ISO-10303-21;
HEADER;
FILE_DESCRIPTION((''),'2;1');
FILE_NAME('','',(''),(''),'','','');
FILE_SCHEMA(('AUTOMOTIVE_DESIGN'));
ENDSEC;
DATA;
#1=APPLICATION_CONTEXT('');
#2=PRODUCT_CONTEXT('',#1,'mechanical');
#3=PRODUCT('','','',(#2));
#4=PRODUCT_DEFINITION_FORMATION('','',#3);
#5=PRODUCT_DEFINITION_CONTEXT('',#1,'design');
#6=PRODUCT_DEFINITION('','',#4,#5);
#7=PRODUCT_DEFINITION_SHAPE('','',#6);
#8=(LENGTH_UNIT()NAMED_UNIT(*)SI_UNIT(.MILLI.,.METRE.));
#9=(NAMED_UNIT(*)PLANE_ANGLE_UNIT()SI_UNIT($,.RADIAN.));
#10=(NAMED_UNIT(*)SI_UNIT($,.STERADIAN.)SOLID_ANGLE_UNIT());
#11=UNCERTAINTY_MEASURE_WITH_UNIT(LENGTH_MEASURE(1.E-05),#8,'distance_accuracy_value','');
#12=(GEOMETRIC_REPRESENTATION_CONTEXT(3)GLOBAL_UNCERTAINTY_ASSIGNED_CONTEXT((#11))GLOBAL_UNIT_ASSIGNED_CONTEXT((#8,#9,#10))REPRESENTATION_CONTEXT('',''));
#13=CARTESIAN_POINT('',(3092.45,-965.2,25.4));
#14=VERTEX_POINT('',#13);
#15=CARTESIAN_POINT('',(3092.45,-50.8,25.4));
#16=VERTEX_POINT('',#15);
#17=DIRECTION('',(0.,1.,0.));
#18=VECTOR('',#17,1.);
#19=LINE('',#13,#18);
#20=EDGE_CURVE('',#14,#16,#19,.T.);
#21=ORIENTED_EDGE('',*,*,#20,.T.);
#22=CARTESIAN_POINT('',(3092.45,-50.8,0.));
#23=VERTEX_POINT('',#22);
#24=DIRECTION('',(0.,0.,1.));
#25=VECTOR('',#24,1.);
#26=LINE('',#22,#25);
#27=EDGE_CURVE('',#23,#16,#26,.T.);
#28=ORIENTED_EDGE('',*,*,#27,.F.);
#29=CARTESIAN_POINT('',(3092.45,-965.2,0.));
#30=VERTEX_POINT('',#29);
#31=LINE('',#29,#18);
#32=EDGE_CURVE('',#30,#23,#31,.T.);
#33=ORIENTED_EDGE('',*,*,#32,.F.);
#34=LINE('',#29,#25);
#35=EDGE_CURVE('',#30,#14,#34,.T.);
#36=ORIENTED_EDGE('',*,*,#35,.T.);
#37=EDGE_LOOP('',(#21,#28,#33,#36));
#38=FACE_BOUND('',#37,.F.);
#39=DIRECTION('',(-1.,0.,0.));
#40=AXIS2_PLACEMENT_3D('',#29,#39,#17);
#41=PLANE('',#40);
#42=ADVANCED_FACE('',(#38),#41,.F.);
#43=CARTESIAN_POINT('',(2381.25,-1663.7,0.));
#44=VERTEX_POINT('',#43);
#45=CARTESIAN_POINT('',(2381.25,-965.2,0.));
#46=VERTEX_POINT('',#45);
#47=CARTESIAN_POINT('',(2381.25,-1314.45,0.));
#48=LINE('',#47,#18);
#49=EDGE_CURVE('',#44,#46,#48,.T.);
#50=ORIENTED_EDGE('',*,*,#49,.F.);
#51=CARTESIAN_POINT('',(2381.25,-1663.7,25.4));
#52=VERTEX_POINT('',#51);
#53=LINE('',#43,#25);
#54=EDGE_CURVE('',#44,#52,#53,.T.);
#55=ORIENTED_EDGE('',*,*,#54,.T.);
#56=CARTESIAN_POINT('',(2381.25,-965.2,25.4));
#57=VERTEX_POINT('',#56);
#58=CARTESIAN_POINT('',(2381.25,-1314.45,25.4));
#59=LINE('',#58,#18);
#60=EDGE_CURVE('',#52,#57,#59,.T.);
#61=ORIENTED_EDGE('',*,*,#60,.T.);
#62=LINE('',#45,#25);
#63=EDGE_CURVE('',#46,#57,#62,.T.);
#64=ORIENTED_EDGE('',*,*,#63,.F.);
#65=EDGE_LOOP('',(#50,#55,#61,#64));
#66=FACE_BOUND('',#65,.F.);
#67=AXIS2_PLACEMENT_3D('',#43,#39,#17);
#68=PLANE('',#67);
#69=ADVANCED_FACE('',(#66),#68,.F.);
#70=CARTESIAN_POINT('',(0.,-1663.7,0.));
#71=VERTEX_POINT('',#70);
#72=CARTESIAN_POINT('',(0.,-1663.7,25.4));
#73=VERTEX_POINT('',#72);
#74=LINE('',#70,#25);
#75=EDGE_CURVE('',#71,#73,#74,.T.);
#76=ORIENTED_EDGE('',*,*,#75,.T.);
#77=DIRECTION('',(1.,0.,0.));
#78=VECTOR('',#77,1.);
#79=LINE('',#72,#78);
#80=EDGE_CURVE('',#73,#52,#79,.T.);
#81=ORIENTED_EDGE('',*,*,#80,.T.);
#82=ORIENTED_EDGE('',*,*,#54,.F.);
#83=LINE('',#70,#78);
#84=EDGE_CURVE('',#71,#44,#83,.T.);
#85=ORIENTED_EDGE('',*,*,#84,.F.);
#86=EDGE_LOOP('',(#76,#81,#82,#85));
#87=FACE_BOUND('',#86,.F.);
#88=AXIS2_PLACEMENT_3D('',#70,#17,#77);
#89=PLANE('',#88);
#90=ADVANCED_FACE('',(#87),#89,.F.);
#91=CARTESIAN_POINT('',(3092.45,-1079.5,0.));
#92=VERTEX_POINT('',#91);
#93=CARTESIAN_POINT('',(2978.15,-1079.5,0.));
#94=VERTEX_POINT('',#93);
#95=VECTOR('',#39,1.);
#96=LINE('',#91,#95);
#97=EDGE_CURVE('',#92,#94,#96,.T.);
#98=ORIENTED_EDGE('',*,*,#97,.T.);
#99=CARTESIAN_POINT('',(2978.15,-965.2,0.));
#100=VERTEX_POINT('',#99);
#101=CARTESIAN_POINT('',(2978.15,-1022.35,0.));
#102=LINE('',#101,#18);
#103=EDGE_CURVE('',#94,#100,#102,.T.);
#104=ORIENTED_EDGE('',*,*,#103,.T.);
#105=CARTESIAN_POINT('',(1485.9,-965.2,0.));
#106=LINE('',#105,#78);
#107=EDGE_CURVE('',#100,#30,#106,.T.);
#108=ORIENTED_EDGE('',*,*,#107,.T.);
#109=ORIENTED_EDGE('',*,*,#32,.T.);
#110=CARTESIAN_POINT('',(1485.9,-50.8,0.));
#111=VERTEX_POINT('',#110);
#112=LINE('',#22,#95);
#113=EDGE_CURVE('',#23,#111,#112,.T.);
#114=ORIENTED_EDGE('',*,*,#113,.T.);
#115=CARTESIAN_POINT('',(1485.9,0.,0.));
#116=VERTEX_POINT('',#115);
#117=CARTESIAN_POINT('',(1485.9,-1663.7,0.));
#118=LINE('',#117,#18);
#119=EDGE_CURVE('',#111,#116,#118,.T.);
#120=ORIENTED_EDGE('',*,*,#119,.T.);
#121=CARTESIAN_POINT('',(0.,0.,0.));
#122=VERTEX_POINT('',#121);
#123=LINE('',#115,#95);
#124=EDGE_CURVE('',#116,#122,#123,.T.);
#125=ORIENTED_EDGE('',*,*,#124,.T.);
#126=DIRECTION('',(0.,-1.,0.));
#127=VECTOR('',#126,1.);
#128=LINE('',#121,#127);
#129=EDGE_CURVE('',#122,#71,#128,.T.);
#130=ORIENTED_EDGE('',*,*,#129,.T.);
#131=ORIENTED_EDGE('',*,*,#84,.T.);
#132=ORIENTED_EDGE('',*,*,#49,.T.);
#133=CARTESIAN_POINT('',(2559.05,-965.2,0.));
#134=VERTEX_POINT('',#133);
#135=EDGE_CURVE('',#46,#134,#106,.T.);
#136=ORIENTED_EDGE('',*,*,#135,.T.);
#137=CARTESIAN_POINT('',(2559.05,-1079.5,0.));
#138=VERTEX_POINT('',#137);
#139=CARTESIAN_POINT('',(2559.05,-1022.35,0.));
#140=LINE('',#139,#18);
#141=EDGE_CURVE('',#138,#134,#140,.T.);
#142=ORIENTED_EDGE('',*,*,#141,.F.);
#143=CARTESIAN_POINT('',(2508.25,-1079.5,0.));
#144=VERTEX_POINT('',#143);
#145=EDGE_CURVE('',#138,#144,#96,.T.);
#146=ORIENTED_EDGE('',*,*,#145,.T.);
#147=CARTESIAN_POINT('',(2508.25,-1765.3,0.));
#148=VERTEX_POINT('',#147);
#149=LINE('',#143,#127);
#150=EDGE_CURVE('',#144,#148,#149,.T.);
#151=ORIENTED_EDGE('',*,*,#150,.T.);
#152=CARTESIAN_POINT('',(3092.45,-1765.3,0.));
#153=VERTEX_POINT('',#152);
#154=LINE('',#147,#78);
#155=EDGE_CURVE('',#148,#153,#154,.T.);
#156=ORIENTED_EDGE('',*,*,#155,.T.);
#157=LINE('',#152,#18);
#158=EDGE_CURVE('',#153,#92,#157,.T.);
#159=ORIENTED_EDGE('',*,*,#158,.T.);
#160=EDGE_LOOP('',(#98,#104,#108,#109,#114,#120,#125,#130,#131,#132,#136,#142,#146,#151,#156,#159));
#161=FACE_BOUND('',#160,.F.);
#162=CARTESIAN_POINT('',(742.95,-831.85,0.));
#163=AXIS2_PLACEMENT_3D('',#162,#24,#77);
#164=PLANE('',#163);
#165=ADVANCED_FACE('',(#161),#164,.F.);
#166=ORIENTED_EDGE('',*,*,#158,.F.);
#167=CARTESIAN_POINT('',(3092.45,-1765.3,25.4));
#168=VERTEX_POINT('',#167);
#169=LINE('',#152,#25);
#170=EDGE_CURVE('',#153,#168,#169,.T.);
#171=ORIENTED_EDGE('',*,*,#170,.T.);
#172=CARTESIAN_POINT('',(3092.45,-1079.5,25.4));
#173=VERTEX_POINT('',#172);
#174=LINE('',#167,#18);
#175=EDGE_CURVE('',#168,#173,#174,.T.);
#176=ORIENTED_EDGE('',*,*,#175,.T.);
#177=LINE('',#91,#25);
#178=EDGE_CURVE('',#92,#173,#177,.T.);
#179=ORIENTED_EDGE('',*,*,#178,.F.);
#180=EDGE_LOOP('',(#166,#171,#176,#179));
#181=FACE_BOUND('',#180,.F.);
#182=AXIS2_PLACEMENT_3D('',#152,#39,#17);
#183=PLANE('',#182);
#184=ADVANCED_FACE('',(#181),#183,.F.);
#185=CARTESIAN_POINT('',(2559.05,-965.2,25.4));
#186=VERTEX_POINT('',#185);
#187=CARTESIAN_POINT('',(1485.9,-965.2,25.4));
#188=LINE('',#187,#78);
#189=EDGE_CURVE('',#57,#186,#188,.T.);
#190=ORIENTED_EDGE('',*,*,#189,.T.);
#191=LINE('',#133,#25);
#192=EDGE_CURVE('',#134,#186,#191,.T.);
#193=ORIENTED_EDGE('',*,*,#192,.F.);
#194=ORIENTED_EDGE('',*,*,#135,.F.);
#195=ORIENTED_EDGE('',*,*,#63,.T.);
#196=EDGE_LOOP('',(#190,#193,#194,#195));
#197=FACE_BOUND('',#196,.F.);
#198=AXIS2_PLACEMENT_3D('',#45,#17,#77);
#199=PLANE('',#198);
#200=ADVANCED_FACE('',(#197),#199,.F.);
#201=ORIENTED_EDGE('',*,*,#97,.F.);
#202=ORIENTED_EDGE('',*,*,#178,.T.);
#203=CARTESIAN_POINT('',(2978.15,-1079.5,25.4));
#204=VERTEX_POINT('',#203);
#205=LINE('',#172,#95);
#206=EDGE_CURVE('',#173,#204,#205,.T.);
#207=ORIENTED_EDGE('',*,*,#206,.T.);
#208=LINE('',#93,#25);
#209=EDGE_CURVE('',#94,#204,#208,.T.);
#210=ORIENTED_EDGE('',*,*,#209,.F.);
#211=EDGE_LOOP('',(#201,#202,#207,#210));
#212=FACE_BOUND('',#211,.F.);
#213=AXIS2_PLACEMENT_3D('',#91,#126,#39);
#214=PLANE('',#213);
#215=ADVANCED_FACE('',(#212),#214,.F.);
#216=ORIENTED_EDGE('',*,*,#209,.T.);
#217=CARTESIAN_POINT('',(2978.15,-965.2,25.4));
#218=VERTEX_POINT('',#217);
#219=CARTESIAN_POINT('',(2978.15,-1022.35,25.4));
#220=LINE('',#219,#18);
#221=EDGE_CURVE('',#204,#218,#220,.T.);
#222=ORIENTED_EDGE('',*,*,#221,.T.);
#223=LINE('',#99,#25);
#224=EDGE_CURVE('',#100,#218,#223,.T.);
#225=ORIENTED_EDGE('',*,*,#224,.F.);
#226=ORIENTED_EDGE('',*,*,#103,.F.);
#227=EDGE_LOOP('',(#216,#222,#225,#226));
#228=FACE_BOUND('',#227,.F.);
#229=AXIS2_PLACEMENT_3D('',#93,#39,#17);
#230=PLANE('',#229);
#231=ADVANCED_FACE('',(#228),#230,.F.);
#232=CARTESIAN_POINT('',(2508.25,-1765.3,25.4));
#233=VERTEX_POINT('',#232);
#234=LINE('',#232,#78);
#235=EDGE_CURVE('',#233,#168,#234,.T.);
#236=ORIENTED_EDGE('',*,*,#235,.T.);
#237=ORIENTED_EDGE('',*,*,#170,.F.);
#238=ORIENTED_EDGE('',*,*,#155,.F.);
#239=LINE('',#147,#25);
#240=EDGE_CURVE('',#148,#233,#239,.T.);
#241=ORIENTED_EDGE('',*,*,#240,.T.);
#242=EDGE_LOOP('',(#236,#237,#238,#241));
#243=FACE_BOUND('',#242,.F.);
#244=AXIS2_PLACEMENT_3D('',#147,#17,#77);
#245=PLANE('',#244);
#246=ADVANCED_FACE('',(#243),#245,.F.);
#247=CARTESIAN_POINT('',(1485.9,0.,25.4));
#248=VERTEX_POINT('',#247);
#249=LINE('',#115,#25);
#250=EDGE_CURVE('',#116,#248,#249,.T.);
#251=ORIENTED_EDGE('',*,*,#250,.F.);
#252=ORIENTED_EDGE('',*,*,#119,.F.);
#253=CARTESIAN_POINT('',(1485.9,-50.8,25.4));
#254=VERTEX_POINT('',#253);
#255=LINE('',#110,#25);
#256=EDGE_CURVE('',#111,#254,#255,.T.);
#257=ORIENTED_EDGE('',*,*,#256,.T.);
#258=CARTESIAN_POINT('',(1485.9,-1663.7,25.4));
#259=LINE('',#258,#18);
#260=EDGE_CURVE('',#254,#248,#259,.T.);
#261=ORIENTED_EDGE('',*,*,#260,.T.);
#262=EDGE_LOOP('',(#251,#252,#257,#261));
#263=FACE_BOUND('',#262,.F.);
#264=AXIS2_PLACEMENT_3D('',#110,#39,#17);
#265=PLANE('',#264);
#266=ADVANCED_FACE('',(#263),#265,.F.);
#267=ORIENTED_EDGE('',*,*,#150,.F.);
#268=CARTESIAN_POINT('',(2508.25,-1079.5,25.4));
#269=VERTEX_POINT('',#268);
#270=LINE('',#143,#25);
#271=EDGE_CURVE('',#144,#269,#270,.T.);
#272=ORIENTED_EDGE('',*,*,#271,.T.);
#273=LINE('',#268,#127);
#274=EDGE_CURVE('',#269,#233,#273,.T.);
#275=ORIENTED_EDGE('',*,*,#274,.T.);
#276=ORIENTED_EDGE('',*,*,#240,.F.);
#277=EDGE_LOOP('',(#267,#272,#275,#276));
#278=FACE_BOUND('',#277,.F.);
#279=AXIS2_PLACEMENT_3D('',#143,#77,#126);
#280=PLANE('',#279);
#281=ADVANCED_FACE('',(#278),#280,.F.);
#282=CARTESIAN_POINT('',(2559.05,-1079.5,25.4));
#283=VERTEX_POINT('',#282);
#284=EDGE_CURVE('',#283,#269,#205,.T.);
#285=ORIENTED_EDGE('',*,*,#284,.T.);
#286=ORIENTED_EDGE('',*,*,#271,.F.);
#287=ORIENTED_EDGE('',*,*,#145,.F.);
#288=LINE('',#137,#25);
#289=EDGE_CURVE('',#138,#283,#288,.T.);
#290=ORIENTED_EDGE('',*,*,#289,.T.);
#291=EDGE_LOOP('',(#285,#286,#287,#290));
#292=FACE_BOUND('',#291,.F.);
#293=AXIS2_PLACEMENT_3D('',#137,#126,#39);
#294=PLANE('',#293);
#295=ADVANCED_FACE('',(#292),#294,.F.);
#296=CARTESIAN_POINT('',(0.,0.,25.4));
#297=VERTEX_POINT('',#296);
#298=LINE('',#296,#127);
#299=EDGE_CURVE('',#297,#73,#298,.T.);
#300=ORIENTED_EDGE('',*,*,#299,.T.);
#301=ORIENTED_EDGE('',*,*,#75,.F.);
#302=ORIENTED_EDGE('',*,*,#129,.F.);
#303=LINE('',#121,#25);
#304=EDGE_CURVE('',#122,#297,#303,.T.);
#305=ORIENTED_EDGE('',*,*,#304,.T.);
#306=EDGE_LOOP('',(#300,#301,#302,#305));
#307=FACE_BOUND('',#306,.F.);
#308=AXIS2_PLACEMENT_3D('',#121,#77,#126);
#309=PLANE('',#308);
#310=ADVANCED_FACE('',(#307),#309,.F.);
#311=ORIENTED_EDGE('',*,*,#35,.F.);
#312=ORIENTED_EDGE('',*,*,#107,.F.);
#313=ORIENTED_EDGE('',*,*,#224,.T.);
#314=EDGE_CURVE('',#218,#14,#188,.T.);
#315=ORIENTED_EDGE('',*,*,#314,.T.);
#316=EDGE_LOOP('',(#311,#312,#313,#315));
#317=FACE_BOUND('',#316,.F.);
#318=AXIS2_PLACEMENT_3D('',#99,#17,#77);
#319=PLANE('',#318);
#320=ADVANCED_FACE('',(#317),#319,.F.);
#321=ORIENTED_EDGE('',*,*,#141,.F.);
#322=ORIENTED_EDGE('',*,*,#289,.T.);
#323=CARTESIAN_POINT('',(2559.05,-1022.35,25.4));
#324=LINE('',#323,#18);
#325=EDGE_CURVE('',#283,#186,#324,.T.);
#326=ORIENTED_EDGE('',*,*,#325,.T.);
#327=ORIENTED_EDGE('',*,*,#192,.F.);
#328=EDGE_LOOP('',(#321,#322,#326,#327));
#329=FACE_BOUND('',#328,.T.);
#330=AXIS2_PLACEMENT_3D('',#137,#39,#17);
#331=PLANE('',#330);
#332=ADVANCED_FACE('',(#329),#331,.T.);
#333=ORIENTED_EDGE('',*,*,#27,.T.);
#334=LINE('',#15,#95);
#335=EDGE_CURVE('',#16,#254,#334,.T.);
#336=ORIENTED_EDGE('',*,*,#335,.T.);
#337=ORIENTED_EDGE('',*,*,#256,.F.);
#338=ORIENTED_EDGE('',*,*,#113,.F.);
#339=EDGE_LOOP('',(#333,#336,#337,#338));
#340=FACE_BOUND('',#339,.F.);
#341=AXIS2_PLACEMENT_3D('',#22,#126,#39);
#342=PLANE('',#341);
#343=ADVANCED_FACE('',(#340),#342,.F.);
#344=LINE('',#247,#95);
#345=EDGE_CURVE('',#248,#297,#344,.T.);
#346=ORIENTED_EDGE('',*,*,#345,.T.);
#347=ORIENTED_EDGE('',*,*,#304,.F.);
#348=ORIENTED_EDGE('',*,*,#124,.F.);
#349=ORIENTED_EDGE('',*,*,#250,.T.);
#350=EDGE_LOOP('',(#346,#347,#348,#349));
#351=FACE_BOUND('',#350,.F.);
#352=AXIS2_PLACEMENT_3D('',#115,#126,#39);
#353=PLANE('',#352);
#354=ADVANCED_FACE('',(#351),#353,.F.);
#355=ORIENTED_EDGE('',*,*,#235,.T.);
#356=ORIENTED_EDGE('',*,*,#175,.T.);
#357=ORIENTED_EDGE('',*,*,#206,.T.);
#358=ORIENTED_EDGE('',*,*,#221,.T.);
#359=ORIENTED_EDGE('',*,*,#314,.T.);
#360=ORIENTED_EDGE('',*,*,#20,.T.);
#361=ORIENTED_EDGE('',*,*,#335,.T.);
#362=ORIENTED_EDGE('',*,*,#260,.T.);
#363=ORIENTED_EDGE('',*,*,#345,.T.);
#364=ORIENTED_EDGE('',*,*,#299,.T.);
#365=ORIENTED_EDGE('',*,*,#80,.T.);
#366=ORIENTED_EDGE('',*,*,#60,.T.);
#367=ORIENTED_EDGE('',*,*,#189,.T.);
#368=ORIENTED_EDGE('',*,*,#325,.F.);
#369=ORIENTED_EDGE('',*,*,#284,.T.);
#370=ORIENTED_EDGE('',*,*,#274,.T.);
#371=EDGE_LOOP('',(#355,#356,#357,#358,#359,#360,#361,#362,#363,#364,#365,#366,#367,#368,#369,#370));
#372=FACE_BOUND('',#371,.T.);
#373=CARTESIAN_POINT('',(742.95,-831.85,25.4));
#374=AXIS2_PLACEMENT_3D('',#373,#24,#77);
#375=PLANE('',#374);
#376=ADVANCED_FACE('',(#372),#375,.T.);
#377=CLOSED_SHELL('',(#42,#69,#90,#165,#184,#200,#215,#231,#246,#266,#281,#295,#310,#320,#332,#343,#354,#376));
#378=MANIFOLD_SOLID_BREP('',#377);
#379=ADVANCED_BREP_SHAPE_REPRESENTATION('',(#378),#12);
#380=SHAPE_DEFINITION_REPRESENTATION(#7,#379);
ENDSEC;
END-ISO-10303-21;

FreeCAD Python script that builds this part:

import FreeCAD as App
import Part
import Sketcher

V = App.Vector
Q = App.Units.Quantity


def add_polygon(sketch, points):
    """Adds a closed chain of lines whose ends are joined by coincident constraints."""
    first, n = sketch.GeometryCount, len(points)
    for a, b in zip(points, points[1:] + points[:1]):
        sketch.addGeometry(Part.LineSegment(App.Vector(*a, 0), App.Vector(*b, 0)), False)
    for i in range(n):
        sketch.addConstraint(Sketcher.Constraint("Coincident", first + i, 2, first + (i + 1) % n, 1))

doc = App.newDocument("Part")
body = doc.addObject("PartDesign::Body", "Body")

sketch1 = body.newObject("Sketcher::SketchObject", "Sketch")
sketch1.AttachmentSupport = (doc.getObject("XY_Plane"), [""])
sketch1.MapMode = "FlatFace"
add_polygon(sketch1, [(1486, 0), (0, 0), (0, -1664), (2381, -1664), (2381, -965), (2559, -965), (2559, -1080), (2508, -1080), (2508, -1765), (3092, -1765), (3092, -1080), (2978, -1080), (2978, -965), (3092, -965), (3092, -51), (1486, -51)])
sketch1.addConstraint([
    Sketcher.Constraint("Horizontal", 0),
    Sketcher.Constraint("Vertical", 1),
    Sketcher.Constraint("Horizontal", 2),
    Sketcher.Constraint("Vertical", 3),
    Sketcher.Constraint("Horizontal", 4),
    Sketcher.Constraint("Vertical", 5),
    Sketcher.Constraint("Horizontal", 6),
    Sketcher.Constraint("Vertical", 7),
    Sketcher.Constraint("Horizontal", 8),
    Sketcher.Constraint("Vertical", 9),
    Sketcher.Constraint("Horizontal", 10),
    Sketcher.Constraint("Vertical", 11),
    Sketcher.Constraint("Horizontal", 12),
    Sketcher.Constraint("Vertical", 13),
    Sketcher.Constraint("Horizontal", 14),
    Sketcher.Constraint("Vertical", 15),
    Sketcher.Constraint("Coincident", 0, 2, -1, 1),
    Sketcher.Constraint("Horizontal", 6, 2, 9, 2),
    Sketcher.Constraint("Horizontal", 4, 2, 11, 2),
    Sketcher.Constraint("Vertical", 9, 2, 12, 2),
    Sketcher.Constraint("Equal", 12, 5),
    Sketcher.Constraint("Equal", 6, 15),
    Sketcher.Constraint("DistanceX", 4, 1, 4, 2, Q("7 in")),
    Sketcher.Constraint("DistanceX", 6, 2, 6, 1, Q("2 in")),
    Sketcher.Constraint("DistanceX", 8, 1, 8, 2, Q("23 in")),
    Sketcher.Constraint("DistanceY", 7, 2, 7, 1, Q("27 in")),
    Sketcher.Constraint("DistanceY", 13, 1, 13, 2, Q("36 in")),
    Sketcher.Constraint("DistanceX", 0, 2, 0, 1, Q("58.5 in")),
    Sketcher.Constraint("DistanceX", 10, 2, 10, 1, Q("4.5 in")),
    Sketcher.Constraint("DistanceY", 1, 2, 1, 1, Q("65.5 in")),
    Sketcher.Constraint("DistanceX", 2, 1, 2, 2, Q("93.75 in")),
])
pad1 = body.newObject("PartDesign::Pad", "Pad")
pad1.Profile = sketch1
pad1.Length = Q("1 in")

doc.recompute()
